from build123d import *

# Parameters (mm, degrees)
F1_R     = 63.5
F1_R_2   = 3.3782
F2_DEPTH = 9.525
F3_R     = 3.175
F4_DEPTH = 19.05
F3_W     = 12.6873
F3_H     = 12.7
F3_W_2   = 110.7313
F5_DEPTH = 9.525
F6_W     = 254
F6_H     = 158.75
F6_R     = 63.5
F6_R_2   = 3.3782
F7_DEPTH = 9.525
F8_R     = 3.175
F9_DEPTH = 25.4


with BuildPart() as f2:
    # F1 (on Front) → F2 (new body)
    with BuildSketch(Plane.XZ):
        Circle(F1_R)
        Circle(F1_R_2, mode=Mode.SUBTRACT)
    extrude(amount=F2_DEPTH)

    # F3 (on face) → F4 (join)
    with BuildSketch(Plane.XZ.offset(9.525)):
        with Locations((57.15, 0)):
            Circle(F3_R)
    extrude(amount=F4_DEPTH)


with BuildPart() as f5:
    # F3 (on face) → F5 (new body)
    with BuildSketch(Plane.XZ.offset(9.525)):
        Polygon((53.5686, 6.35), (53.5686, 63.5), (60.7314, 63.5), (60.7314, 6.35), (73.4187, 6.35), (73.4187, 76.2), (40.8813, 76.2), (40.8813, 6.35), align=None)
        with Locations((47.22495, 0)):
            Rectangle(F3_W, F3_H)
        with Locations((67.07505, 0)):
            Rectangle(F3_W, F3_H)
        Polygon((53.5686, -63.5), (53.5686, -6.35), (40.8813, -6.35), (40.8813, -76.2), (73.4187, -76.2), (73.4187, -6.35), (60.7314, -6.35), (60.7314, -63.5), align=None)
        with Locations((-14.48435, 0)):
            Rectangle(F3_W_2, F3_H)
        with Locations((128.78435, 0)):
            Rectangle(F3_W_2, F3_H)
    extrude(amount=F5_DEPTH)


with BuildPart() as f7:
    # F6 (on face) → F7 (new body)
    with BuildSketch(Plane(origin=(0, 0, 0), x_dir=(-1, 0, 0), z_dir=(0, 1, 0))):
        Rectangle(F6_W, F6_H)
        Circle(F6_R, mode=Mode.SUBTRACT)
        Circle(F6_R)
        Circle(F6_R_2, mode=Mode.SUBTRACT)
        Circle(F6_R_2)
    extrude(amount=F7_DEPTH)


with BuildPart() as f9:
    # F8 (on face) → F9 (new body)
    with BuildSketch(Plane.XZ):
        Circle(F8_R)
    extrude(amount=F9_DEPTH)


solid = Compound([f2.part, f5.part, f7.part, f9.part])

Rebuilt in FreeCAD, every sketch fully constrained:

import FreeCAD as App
import Part
import Sketcher

V = App.Vector
Q = App.Units.Quantity

doc = App.newDocument("Part")
body = doc.addObject("PartDesign::Body", "Body")

# Sketch on XZ plane
sketch1 = doc.addObject("Sketcher::SketchObject", "Sketch")
body.addObject(sketch1)
sketch1.AttachmentSupport = (doc.XZ_Plane, [""])
sketch1.MapMode = "FlatFace"
sketch1.addGeometry(Part.Circle(V(0, 0, 0), V(0, 0, 1), 63.5), False)
sketch1.addGeometry(Part.Circle(V(0, 0, 0), V(0, 0, 1), 3.4), False)
sketch1.addConstraint(Sketcher.Constraint("Coincident", 0, 3, -1, 1))
sketch1.addConstraint(Sketcher.Constraint("Coincident", 1, 3, -1, 1))
sketch1.addConstraint(Sketcher.Constraint("Diameter", 0, Q("5 in")))
sketch1.addConstraint(Sketcher.Constraint("Diameter", 1, Q("0.266 in")))
pad1 = doc.addObject("PartDesign::Pad", "Pad")
body.addObject(pad1)
pad1.Profile = sketch1
pad1.Length = Q("0.375 in")

# Sketch on XZ plane
sketch2 = doc.addObject("Sketcher::SketchObject", "Sketch001")
body.addObject(sketch2)
sketch2.AttachmentSupport = (doc.XZ_Plane, [""])
sketch2.MapMode = "FlatFace"
sketch2.AttachmentOffset = App.Placement(V(0, 0, 0.375 * 25.4), App.Rotation())
sketch2.addGeometry(Part.Circle(V(57.1, 0, 0), V(0, 0, 1), 3.2), False)
sketch2.addConstraint(Sketcher.Constraint("PointOnObject", 0, 3, -1))
sketch2.addConstraint(Sketcher.Constraint("Diameter", 0, Q("0.25 in")))
sketch2.addConstraint(Sketcher.Constraint("DistanceX", -1, 1, 0, 3, Q("2.25 in")))
pad2 = doc.addObject("PartDesign::Pad", "Pad001")
body.addObject(pad2)
pad2.Profile = sketch2
pad2.Length = Q("0.75 in")
body2 = doc.addObject("PartDesign::Body", "Body001")

# Sketch on XZ plane
sketch3 = doc.addObject("Sketcher::SketchObject", "Sketch002")
body2.addObject(sketch3)
sketch3.AttachmentSupport = (doc.getObject("XZ_Plane001"), [""])
sketch3.MapMode = "FlatFace"
sketch3.AttachmentOffset = App.Placement(V(0, 0, 0.375 * 25.4), App.Rotation())
sketch3.addGeometry(Part.LineSegment(V(73, 76, 0), V(41, 76, 0)), False)
sketch3.addGeometry(Part.LineSegment(V(41, 76, 0), V(41, 6, 0)), False)
sketch3.addGeometry(Part.LineSegment(V(41, 6, 0), V(-70, 6, 0)), False)
sketch3.addGeometry(Part.LineSegment(V(-70, 6, 0), V(-70, -6, 0)), False)
sketch3.addGeometry(Part.LineSegment(V(-70, -6, 0), V(41, -6, 0)), False)
sketch3.addGeometry(Part.LineSegment(V(41, -6, 0), V(41, -76, 0)), False)
sketch3.addGeometry(Part.LineSegment(V(41, -76, 0), V(73, -76, 0)), False)
sketch3.addGeometry(Part.LineSegment(V(73, -76, 0), V(73, -6, 0)), False)
sketch3.addGeometry(Part.LineSegment(V(73, -6, 0), V(184, -6, 0)), False)
sketch3.addGeometry(Part.LineSegment(V(184, -6, 0), V(184, 6, 0)), False)
sketch3.addGeometry(Part.LineSegment(V(184, 6, 0), V(73, 6, 0)), False)
sketch3.addGeometry(Part.LineSegment(V(73, 6, 0), V(73, 76, 0)), False)
sketch3.addGeometry(Part.LineSegment(V(54, 64, 0), V(61, 64, 0)), False)
sketch3.addGeometry(Part.LineSegment(V(61, 64, 0), V(61, -64, 0)), False)
sketch3.addGeometry(Part.LineSegment(V(61, -64, 0), V(54, -64, 0)), False)
sketch3.addGeometry(Part.LineSegment(V(54, -64, 0), V(54, 64, 0)), False)
sketch3.addConstraint(Sketcher.Constraint("Coincident", 0, 2, 1, 1))
sketch3.addConstraint(Sketcher.Constraint("Coincident", 1, 2, 2, 1))
sketch3.addConstraint(Sketcher.Constraint("Coincident", 2, 2, 3, 1))
sketch3.addConstraint(Sketcher.Constraint("Coincident", 3, 2, 4, 1))
sketch3.addConstraint(Sketcher.Constraint("Coincident", 4, 2, 5, 1))
sketch3.addConstraint(Sketcher.Constraint("Coincident", 5, 2, 6, 1))
sketch3.addConstraint(Sketcher.Constraint("Coincident", 6, 2, 7, 1))
sketch3.addConstraint(Sketcher.Constraint("Coincident", 7, 2, 8, 1))
sketch3.addConstraint(Sketcher.Constraint("Coincident", 8, 2, 9, 1))
sketch3.addConstraint(Sketcher.Constraint("Coincident", 9, 2, 10, 1))
sketch3.addConstraint(Sketcher.Constraint("Coincident", 10, 2, 11, 1))
sketch3.addConstraint(Sketcher.Constraint("Coincident", 11, 2, 0, 1))
sketch3.addConstraint(Sketcher.Constraint("Coincident", 12, 2, 13, 1))
sketch3.addConstraint(Sketcher.Constraint("Coincident", 13, 2, 14, 1))
sketch3.addConstraint(Sketcher.Constraint("Coincident", 14, 2, 15, 1))
sketch3.addConstraint(Sketcher.Constraint("Coincident", 15, 2, 12, 1))
sketch3.addConstraint(Sketcher.Constraint("Horizontal", 0))
sketch3.addConstraint(Sketcher.Constraint("Vertical", 1))
sketch3.addConstraint(Sketcher.Constraint("Horizontal", 2))
sketch3.addConstraint(Sketcher.Constraint("Vertical", 3))
sketch3.addConstraint(Sketcher.Constraint("Horizontal", 4))
sketch3.addConstraint(Sketcher.Constraint("Vertical", 5))
sketch3.addConstraint(Sketcher.Constraint("Horizontal", 6))
sketch3.addConstraint(Sketcher.Constraint("Vertical", 7))
sketch3.addConstraint(Sketcher.Constraint("Horizontal", 8))
sketch3.addConstraint(Sketcher.Constraint("Vertical", 9))
sketch3.addConstraint(Sketcher.Constraint("Horizontal", 10))
sketch3.addConstraint(Sketcher.Constraint("Vertical", 11))
sketch3.addConstraint(Sketcher.Constraint("Horizontal", 12))
sketch3.addConstraint(Sketcher.Constraint("Vertical", 13))
sketch3.addConstraint(Sketcher.Constraint("Horizontal", 14))
sketch3.addConstraint(Sketcher.Constraint("Vertical", 15))
sketch3.addConstraint(Sketcher.Constraint("Symmetric", 1, 2, 4, 2, -1))
sketch3.addConstraint(Sketcher.Constraint("Symmetric", 7, 2, 10, 2, -1))
sketch3.addConstraint(Sketcher.Constraint("Horizontal", 4, 2, 7, 2))
sketch3.addConstraint(Sketcher.Constraint("Equal", 4, 8))
sketch3.addConstraint(Sketcher.Constraint("Equal", 1, 5))
sketch3.addConstraint(Sketcher.Constraint("DistanceY", 13, 2, 13, 1, Q("5 in")))
sketch3.addConstraint(Sketcher.Constraint("DistanceY", 3, 2, 3, 1, Q("0.5 in")))
sketch3.addConstraint(Sketcher.Constraint("DistanceY", -1, 1, 0, 2, Q("3 in")))
sketch3.addConstraint(Sketcher.Constraint("DistanceY", -1, 1, 12, 2, Q("2.5 in")))
sketch3.addConstraint(Sketcher.Constraint("DistanceX", 0, 2, 0, 1, Q("1.281 in")))
sketch3.addConstraint(Sketcher.Constraint("DistanceX", 12, 1, 12, 2, Q("0.282 in")))
sketch3.addConstraint(Sketcher.Constraint("DistanceX", 2, 2, -1, 1, Q("2.75 in")))
sketch3.addConstraint(Sketcher.Constraint("DistanceX", -1, 1, 8, 2, Q("7.25 in")))
sketch3.addConstraint(Sketcher.Constraint("DistanceX", -1, 1, 12, 2, Q("2.391 in")))
pad3 = doc.addObject("PartDesign::Pad", "Pad002")
body2.addObject(pad3)
pad3.Profile = sketch3
pad3.Length = Q("0.375 in")
body3 = doc.addObject("PartDesign::Body", "Body002")

# Sketch on XZ plane
sketch4 = doc.addObject("Sketcher::SketchObject", "Sketch003")
body3.addObject(sketch4)
sketch4.AttachmentSupport = (doc.getObject("XZ_Plane002"), [""])
sketch4.MapMode = "FlatFace"
sketch4.addGeometry(Part.LineSegment(V(127, 79, 0), V(127, -79, 0)), False)
sketch4.addGeometry(Part.LineSegment(V(127, -79, 0), V(-127, -79, 0)), False)
sketch4.addGeometry(Part.LineSegment(V(-127, -79, 0), V(-127, 79, 0)), False)
sketch4.addGeometry(Part.LineSegment(V(-127, 79, 0), V(127, 79, 0)), False)
sketch4.addConstraint(Sketcher.Constraint("Coincident", 0, 2, 1, 1))
sketch4.addConstraint(Sketcher.Constraint("Coincident", 1, 2, 2, 1))
sketch4.addConstraint(Sketcher.Constraint("Coincident", 2, 2, 3, 1))
sketch4.addConstraint(Sketcher.Constraint("Coincident", 3, 2, 0, 1))
sketch4.addConstraint(Sketcher.Constraint("Vertical", 0))
sketch4.addConstraint(Sketcher.Constraint("Horizontal", 1))
sketch4.addConstraint(Sketcher.Constraint("Vertical", 2))
sketch4.addConstraint(Sketcher.Constraint("Horizontal", 3))
sketch4.addConstraint(Sketcher.Constraint("Symmetric", 0, 2, 2, 2, -1, 1))
sketch4.addConstraint(Sketcher.Constraint("DistanceX", 1, 2, 1, 1, Q("10 in")))
sketch4.addConstraint(Sketcher.Constraint("DistanceY", 0, 2, 0, 1, Q("6.25 in")))
pad4 = doc.addObject("PartDesign::Pad", "Pad003")
body3.addObject(pad4)
pad4.Profile = sketch4
pad4.Length = Q("0.375 in")
pad4.Reversed = True
body4 = doc.addObject("PartDesign::Body", "Body003")

# Sketch on XZ plane
sketch5 = doc.addObject("Sketcher::SketchObject", "Sketch004")
body4.addObject(sketch5)
sketch5.AttachmentSupport = (doc.getObject("XZ_Plane003"), [""])
sketch5.MapMode = "FlatFace"
sketch5.addGeometry(Part.Circle(V(0, 0, 0), V(0, 0, 1), 3.2), False)
sketch5.addConstraint(Sketcher.Constraint("Coincident", 0, 3, -1, 1))
sketch5.addConstraint(Sketcher.Constraint("Diameter", 0, Q("0.25 in")))
pad5 = doc.addObject("PartDesign::Pad", "Pad004")
body4.addObject(pad5)
pad5.Profile = sketch5
pad5.Length = Q("1 in")

doc.recompute()
